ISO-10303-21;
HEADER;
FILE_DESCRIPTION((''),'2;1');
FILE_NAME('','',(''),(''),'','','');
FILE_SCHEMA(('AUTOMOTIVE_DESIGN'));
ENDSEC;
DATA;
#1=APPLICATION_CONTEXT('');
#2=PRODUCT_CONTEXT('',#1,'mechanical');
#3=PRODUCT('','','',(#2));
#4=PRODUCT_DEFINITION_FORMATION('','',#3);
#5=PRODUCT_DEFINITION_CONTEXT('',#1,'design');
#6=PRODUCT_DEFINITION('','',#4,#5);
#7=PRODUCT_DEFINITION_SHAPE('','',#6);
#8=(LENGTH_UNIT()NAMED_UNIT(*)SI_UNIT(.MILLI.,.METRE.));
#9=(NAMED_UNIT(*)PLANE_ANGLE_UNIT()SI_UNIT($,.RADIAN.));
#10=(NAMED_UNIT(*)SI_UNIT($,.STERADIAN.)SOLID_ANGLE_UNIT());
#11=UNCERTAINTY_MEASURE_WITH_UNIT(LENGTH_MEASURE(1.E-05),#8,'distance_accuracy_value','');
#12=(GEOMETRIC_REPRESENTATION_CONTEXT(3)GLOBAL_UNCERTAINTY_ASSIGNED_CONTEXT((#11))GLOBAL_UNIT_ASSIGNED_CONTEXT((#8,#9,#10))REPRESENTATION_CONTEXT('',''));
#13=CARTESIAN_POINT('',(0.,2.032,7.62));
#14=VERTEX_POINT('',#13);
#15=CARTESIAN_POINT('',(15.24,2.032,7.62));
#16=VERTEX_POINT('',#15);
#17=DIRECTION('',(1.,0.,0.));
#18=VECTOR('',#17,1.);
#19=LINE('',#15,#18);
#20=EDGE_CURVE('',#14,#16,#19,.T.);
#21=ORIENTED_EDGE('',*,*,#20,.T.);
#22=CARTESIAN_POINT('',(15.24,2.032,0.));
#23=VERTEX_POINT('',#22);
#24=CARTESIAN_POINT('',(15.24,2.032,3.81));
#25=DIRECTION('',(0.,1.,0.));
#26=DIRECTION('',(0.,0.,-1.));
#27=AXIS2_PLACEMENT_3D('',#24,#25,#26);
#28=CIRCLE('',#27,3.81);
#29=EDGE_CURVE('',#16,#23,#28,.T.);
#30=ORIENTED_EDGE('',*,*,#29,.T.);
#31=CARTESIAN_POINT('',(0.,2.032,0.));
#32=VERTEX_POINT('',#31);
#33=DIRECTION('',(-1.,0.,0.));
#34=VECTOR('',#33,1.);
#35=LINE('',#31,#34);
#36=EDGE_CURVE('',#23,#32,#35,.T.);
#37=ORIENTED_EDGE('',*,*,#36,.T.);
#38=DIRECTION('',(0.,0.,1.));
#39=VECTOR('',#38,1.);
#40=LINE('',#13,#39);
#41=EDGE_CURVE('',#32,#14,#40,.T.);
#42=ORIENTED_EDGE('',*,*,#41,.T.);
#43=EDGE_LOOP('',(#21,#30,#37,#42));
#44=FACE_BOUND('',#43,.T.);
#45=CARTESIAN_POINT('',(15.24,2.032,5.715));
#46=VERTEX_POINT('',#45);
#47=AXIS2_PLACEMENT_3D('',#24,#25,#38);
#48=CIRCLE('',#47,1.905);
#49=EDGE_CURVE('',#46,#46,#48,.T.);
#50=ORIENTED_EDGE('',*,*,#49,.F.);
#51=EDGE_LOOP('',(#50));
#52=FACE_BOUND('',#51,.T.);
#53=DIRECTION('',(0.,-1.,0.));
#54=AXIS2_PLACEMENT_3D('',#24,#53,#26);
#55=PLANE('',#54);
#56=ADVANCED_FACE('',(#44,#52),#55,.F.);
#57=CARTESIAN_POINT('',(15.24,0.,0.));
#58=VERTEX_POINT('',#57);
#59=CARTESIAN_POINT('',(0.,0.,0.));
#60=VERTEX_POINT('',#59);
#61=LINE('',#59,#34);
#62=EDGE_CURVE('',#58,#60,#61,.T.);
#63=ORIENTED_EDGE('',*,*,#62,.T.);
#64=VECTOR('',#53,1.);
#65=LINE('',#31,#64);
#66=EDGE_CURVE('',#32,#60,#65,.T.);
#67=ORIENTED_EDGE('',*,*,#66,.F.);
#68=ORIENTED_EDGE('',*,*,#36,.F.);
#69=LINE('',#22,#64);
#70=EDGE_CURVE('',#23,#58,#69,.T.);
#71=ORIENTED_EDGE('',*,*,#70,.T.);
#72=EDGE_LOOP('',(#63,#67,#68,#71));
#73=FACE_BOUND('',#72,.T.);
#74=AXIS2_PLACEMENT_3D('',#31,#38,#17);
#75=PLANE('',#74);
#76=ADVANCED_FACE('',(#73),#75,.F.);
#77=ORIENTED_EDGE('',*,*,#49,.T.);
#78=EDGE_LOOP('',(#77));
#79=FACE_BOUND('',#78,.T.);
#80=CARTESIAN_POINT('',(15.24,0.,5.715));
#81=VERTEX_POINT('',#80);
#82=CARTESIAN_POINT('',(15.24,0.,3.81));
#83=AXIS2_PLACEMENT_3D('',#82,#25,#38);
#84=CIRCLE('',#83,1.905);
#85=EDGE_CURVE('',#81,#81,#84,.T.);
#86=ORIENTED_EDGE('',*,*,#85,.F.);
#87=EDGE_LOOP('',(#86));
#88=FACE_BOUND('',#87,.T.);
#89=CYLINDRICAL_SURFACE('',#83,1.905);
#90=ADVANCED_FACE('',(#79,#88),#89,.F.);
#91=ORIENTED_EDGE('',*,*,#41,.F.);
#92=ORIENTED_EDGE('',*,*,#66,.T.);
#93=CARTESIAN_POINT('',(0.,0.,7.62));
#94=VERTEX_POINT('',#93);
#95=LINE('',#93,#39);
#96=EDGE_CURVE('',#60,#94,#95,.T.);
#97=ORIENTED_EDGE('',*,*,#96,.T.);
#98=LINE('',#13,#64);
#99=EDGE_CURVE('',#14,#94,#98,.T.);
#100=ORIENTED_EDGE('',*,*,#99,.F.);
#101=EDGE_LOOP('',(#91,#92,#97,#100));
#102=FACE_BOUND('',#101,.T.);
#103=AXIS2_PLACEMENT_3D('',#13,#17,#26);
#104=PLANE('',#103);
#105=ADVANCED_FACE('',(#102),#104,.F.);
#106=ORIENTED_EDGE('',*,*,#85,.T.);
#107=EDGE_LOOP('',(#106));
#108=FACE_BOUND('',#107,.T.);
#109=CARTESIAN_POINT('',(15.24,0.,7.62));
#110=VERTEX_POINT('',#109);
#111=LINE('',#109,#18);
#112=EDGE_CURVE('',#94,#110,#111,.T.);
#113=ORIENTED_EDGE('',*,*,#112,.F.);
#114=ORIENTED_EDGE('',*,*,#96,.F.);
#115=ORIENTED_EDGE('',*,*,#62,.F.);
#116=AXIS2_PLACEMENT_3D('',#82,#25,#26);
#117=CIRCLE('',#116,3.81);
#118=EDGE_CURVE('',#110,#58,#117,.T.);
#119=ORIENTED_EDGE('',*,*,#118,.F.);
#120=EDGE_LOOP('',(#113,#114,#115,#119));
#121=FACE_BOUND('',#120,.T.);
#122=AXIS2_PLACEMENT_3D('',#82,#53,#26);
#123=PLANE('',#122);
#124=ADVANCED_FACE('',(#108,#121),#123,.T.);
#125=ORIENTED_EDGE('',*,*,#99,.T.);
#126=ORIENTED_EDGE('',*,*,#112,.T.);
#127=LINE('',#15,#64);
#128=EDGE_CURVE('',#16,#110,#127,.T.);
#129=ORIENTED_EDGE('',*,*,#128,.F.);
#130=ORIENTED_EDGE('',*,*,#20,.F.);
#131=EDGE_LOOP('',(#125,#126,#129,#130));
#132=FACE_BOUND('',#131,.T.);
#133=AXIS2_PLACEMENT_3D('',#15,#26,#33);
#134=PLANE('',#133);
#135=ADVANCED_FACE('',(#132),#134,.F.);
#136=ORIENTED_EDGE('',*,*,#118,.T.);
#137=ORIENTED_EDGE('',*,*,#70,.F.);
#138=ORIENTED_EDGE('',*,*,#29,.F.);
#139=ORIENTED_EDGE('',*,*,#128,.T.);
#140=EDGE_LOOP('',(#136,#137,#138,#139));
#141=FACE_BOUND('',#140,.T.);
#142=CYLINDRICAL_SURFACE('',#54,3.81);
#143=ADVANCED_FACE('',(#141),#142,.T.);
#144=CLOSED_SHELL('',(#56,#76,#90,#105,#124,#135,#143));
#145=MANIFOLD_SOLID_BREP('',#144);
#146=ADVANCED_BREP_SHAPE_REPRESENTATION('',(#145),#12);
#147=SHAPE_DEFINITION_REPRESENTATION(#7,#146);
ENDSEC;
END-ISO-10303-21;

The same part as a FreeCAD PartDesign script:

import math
import FreeCAD as App
import Part
import Sketcher

V = App.Vector
Q = App.Units.Quantity

doc = App.newDocument("Part")
body = doc.addObject("PartDesign::Body", "Body")

# Sketch on XZ plane
sketch1 = doc.addObject("Sketcher::SketchObject", "Sketch")
body.addObject(sketch1)
sketch1.AttachmentSupport = (doc.XZ_Plane, [""])
sketch1.MapMode = "FlatFace"
sketch1.addGeometry([
    Part.LineSegment(V(15.2, 0, 0), V(0, 0, 0)),
    Part.LineSegment(V(0, 0, 0), V(0, 7.6, 0)),
    Part.LineSegment(V(0, 7.6, 0), V(15.2, 7.6, 0)),
    Part.ArcOfCircle(Part.Circle(V(15.2, 3.8, 0), V(0, 0, 1), 3.8), math.radians(-90), math.radians(90)),
], False)
sketch1.addConstraint([
    Sketcher.Constraint("Coincident", 0, 2, 1, 1),
    Sketcher.Constraint("Coincident", 1, 2, 2, 1),
    Sketcher.Constraint("Tangent", 2, 2, 3, 2),
    Sketcher.Constraint("Tangent", 3, 1, 0, 1),
    Sketcher.Constraint("Horizontal", 0),
    Sketcher.Constraint("Vertical", 1),
    Sketcher.Constraint("Horizontal", 2),
    Sketcher.Constraint("Coincident", 0, 2, -1, 1),
    Sketcher.Constraint("Radius", 3, Q("0.15 in")),
    Sketcher.Constraint("DistanceX", 0, 2, 0, 1, Q("0.6 in")),
])
pad1 = doc.addObject("PartDesign::Pad", "Pad")
body.addObject(pad1)
pad1.Profile = sketch1
pad1.Length = Q("0.08 in")
pad1.Reversed = True

# Sketch on XZ plane
sketch2 = doc.addObject("Sketcher::SketchObject", "Sketch001")
body.addObject(sketch2)
sketch2.AttachmentSupport = (doc.XZ_Plane, [""])
sketch2.MapMode = "FlatFace"
sketch2.AttachmentOffset = App.Placement(V(0, 0, -0.08 * 25.4), App.Rotation())
sketch2.addGeometry(Part.Circle(V(15.2, 3.8, 0), V(0, 0, 1), 1.9), False)
sketch2.addConstraint([
    Sketcher.Constraint("Diameter", 0, Q("0.15 in")),
    Sketcher.Constraint("DistanceX", -1, 1, 0, 3, Q("0.6 in")),
    Sketcher.Constraint("DistanceY", -1, 1, 0, 3, Q("0.15 in")),
])
pocket1 = doc.addObject("PartDesign::Pocket", "Pocket")
body.addObject(pocket1)
pocket1.Profile = sketch2
pocket1.Type = "ThroughAll"
pocket1.Reversed = True

doc.recompute()
